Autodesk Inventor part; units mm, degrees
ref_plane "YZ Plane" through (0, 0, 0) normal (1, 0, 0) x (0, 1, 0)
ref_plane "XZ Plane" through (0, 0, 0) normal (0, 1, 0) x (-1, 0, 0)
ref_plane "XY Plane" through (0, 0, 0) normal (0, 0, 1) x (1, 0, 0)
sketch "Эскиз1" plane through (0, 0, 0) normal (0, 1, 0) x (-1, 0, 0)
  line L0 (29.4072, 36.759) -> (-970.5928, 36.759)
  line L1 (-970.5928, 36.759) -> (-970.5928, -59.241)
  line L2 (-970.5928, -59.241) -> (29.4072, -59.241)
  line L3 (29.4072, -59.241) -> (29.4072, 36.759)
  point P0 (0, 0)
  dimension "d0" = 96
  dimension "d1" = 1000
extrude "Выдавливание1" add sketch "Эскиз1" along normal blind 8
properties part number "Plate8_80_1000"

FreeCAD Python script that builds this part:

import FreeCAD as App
import Part
import Sketcher

V = App.Vector


def add_polygon(sketch, points):
    """Adds a closed chain of lines whose ends are joined by coincident constraints."""
    first, n = sketch.GeometryCount, len(points)
    for a, b in zip(points, points[1:] + points[:1]):
        sketch.addGeometry(Part.LineSegment(App.Vector(*a, 0), App.Vector(*b, 0)), False)
    for i in range(n):
        sketch.addConstraint(Sketcher.Constraint("Coincident", first + i, 2, first + (i + 1) % n, 1))

doc = App.newDocument("Part")
body = doc.addObject("PartDesign::Body", "Body")

# Sketch on XZ plane
sketch1 = doc.addObject("Sketcher::SketchObject", "Sketch")
body.addObject(sketch1)
sketch1.AttachmentSupport = (doc.XZ_Plane, [""])
sketch1.MapMode = "FlatFace"
add_polygon(sketch1, [(-29, -59), (-29, 37), (971, 37), (971, -59)])  # lines 0-3
sketch1.addConstraint(Sketcher.Constraint("Vertical", 0))
sketch1.addConstraint(Sketcher.Constraint("Horizontal", 1))
sketch1.addConstraint(Sketcher.Constraint("Vertical", 2))
sketch1.addConstraint(Sketcher.Constraint("Horizontal", 3))
sketch1.addConstraint(Sketcher.Constraint("DistanceX", 1, 1, 1, 2, 1000.0))
sketch1.addConstraint(Sketcher.Constraint("DistanceY", 0, 1, 0, 2, 96.0))
sketch1.addConstraint(Sketcher.Constraint("DistanceY", -1, 1, 0, 2, 36.759))
sketch1.addConstraint(Sketcher.Constraint("DistanceX", 0, 2, -1, 1, 29.4072))
pad1 = doc.addObject("PartDesign::Pad", "Pad")
body.addObject(pad1)
pad1.Profile = sketch1
pad1.Length = 8
pad1.Reversed = True

doc.recompute()
